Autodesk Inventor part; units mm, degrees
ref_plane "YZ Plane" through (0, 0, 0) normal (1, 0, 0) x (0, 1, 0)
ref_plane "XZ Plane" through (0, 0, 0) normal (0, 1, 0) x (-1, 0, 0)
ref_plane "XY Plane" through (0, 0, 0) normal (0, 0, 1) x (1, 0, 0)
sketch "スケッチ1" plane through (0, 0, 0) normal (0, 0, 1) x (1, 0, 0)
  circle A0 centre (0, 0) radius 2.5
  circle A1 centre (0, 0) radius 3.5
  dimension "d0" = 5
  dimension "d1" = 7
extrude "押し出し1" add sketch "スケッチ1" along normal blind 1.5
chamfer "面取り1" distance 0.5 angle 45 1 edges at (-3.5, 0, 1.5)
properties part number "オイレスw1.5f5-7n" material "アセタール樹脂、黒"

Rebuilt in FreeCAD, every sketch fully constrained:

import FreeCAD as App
import Part
import Sketcher
Q = App.Units.Quantity


def edges_at(feature, points):
    """Names of the edges that pass closest to the given points."""
    edges = feature.Shape.Edges
    near = lambda p: min(range(len(edges)), key=lambda i: edges[i].distToShape(Part.Vertex(*p))[0])
    return sorted({f"Edge{near(p) + 1}" for p in points})

doc = App.newDocument("Part")
params = doc.addObject("Spreadsheet::Sheet", "Params")
for row, (alias, value) in enumerate([
    ("sketch1_diameter", "7 mm"),
    ("sketch1_diameter2", "5 mm"),
    ("pad1_length", "1.5 mm"),
    ("chamfer_size", "0.5 mm"),
], start=1):
    params.set(f"A{row}", alias)
    params.set(f"B{row}", "=" + value)
    params.setAlias(f"B{row}", alias)

body = doc.addObject("PartDesign::Body", "Body")

sketch1 = body.newObject("Sketcher::SketchObject", "Sketch")
sketch1.AttachmentSupport = (doc.getObject("XY_Plane"), [""])
sketch1.MapMode = "FlatFace"
sketch1.addGeometry([
    Part.Circle(App.Vector(0, 0, 0), App.Vector(0, 0, 1), 3.5),
    Part.Circle(App.Vector(0, 0, 0), App.Vector(0, 0, 1), 2.5),
], False)
sketch1.addConstraint([
    Sketcher.Constraint("Coincident", 0, 3, -1, 1),
    Sketcher.Constraint("Coincident", 1, 3, -1, 1),
    Sketcher.Constraint("Diameter", 0, Q("7 mm")),
    Sketcher.Constraint("Diameter", 1, Q("5 mm")),
])
sketch1.setExpression("Constraints[2]", "Params.sketch1_diameter")
sketch1.setExpression("Constraints[3]", "Params.sketch1_diameter2")
pad1 = body.newObject("PartDesign::Pad", "Pad")
pad1.Profile = sketch1
pad1.setExpression("Length", "Params.pad1_length")
doc.recompute()

chamfer = body.newObject("PartDesign::Chamfer", "Chamfer")
chamfer.Base = (pad1, edges_at(pad1, [(-3.5, 0, 1.5)]))
chamfer.setExpression("Size", "Params.chamfer_size")

doc.recompute()
